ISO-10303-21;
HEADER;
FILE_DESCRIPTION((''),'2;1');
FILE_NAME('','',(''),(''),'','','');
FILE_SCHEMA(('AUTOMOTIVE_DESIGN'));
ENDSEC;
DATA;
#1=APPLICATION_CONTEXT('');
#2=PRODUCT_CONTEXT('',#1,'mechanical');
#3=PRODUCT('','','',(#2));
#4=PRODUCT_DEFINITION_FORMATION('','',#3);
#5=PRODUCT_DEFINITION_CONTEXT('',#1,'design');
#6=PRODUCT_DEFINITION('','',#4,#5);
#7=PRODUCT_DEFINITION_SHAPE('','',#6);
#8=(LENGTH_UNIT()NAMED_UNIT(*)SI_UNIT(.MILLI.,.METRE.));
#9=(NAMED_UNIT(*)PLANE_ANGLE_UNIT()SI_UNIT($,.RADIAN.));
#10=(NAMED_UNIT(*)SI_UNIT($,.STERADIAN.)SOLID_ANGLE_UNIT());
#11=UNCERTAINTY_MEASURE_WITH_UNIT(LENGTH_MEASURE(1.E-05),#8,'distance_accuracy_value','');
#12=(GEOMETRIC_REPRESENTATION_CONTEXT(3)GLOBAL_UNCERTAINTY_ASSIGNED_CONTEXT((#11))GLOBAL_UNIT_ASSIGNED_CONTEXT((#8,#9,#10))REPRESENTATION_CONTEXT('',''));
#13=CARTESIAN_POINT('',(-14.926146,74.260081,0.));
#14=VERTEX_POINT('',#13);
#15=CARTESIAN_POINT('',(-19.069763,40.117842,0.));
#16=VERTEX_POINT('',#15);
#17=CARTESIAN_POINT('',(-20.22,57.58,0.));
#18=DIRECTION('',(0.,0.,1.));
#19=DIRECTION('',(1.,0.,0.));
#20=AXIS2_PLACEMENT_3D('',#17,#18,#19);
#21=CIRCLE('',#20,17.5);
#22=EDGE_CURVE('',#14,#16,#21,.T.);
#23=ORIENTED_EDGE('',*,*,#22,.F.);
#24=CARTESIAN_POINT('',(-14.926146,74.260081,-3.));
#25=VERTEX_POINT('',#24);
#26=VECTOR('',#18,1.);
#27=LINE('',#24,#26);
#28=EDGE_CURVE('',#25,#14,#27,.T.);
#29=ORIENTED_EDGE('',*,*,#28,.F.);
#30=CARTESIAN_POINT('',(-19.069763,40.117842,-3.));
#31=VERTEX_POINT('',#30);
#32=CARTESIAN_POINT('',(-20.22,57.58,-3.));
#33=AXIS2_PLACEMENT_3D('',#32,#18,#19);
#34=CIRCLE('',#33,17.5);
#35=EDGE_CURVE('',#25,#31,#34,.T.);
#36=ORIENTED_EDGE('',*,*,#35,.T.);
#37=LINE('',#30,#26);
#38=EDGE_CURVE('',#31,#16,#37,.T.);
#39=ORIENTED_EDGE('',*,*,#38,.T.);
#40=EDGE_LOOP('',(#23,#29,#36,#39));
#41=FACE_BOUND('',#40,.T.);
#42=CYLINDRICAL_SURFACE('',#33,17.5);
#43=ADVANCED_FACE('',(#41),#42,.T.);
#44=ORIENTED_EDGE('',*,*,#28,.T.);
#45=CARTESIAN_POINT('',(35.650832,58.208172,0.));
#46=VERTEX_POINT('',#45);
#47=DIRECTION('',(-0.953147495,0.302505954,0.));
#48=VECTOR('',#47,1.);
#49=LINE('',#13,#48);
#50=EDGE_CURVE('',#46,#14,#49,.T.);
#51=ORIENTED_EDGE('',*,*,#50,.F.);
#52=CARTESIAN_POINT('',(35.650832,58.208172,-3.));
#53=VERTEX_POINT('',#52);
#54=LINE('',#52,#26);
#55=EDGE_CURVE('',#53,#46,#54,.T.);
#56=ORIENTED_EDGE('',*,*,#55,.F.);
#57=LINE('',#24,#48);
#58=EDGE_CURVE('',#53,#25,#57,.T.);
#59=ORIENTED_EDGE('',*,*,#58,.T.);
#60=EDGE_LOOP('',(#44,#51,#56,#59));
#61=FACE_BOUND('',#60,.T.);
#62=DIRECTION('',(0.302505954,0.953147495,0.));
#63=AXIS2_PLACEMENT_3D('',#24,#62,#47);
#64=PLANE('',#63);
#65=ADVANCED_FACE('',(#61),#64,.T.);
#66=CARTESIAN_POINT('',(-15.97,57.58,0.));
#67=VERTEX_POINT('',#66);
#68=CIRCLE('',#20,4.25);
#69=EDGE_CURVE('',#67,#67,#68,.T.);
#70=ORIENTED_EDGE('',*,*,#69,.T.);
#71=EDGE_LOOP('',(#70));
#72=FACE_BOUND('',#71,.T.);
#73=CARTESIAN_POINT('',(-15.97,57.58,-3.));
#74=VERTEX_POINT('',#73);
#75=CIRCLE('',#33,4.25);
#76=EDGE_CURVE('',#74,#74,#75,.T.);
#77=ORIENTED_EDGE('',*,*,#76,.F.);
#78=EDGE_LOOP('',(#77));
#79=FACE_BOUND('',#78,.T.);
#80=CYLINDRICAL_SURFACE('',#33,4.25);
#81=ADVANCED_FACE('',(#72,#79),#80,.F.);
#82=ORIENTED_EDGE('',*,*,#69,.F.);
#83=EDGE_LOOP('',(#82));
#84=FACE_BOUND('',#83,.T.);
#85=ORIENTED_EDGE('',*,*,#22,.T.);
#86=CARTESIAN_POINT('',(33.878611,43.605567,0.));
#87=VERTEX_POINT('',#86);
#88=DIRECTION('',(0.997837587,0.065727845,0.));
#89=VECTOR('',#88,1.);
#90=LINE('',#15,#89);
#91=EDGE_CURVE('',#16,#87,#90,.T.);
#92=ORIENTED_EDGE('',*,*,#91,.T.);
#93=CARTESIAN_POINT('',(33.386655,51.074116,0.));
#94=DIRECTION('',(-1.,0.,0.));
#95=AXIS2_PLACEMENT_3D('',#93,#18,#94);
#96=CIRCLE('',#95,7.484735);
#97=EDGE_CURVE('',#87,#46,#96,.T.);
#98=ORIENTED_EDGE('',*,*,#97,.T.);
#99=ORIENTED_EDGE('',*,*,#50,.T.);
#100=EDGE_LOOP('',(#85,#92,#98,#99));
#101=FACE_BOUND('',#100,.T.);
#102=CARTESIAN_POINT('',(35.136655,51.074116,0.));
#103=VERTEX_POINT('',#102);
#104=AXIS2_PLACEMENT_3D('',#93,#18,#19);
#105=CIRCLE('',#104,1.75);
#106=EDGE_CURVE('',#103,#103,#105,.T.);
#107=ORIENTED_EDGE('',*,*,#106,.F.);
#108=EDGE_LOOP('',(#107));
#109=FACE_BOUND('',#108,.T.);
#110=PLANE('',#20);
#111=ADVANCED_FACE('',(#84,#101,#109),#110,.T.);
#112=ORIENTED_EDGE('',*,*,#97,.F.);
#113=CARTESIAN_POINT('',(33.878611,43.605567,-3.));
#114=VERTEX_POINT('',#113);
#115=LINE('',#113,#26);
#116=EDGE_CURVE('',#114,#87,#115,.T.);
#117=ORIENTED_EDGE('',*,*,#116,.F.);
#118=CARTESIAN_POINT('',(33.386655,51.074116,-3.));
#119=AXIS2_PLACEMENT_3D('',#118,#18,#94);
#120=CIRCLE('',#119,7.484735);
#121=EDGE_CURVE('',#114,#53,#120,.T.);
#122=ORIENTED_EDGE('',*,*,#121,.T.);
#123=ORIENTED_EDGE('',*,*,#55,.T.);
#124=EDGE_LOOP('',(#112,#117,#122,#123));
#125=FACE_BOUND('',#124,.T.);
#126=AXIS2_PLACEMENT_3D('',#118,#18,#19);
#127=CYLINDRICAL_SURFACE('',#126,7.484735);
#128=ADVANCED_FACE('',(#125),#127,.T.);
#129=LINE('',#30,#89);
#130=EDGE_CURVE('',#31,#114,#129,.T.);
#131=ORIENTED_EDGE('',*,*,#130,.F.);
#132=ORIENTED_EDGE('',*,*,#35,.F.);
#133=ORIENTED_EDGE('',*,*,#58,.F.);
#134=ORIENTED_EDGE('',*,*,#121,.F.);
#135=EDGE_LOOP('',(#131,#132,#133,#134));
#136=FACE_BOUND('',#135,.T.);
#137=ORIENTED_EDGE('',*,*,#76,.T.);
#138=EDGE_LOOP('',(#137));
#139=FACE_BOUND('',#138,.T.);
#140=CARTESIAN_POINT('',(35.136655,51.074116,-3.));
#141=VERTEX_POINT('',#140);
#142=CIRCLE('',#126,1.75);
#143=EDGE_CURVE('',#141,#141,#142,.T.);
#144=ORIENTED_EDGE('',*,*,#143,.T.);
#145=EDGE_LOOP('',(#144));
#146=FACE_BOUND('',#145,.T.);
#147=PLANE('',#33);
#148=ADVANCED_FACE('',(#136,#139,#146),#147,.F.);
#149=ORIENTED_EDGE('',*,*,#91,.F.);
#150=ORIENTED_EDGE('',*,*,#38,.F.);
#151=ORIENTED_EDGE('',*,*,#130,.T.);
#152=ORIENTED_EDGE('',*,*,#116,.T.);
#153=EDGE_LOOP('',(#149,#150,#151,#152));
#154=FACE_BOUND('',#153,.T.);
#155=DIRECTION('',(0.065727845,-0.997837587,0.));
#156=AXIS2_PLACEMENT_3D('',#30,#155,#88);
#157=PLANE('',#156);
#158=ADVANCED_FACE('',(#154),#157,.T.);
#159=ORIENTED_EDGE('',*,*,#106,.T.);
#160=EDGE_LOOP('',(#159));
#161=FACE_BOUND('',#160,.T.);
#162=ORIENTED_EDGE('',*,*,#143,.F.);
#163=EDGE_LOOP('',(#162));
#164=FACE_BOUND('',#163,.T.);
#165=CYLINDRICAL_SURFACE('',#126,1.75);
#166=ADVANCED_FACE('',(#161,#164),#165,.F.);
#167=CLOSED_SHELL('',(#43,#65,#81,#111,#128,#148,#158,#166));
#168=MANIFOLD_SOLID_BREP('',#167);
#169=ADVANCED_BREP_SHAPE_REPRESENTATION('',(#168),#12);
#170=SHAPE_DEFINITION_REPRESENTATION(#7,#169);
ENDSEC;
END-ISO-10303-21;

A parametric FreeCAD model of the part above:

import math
import FreeCAD as App
import Part
import Sketcher

V = App.Vector

doc = App.newDocument("Part")
params = doc.addObject("Spreadsheet::Sheet", "Params")
for row, (alias, value) in enumerate([
    ("sketch1_diameter", "3.5 mm"),
    ("sketch1_diameter2", "8.5 mm"),
    ("sketch1_radius", "17.5 mm"),
    ("pad1_length", "3 mm"),
], start=1):
    params.set(f"A{row}", alias)
    params.set(f"B{row}", "=" + value)
    params.setAlias(f"B{row}", alias)

body = doc.addObject("PartDesign::Body", "Body")

# Sketch on XY plane
sketch1 = body.newObject("Sketcher::SketchObject", "Sketch")
sketch1.AttachmentSupport = (doc.getObject("XY_Plane"), [""])
sketch1.MapMode = "FlatFace"
sketch1.addGeometry(Part.LineSegment(V(35.7, 58.2, 0), V(-14.9, 74.3, 0)), False)
sketch1.addGeometry(Part.ArcOfCircle(Part.Circle(V(-20.2, 57.6, 0), V(0, 0, 1), 17.5), math.radians(72), math.radians(274)), False)
sketch1.addGeometry(Part.LineSegment(V(-19.1, 40.1, 0), V(33.9, 43.6, 0)), False)
sketch1.addGeometry(Part.ArcOfCircle(Part.Circle(V(33.4, 51.1, 0), V(0, 0, 1), 7.5), math.radians(-86), math.radians(72)), False)
sketch1.addGeometry(Part.Circle(V(33.4, 51.1, 0), V(0, 0, 1), 1.8), False)
sketch1.addGeometry(Part.Circle(V(-20.2, 57.6, 0), V(0, 0, 1), 4.2), False)
sketch1.addConstraint(Sketcher.Constraint("Tangent", 0, 2, 1, 1))
sketch1.addConstraint(Sketcher.Constraint("Tangent", 1, 2, 2, 1))
sketch1.addConstraint(Sketcher.Constraint("Tangent", 2, 2, 3, 1))
sketch1.addConstraint(Sketcher.Constraint("Tangent", 3, 2, 0, 1))
sketch1.addConstraint(Sketcher.Constraint("Coincident", 4, 3, 3, 3))
sketch1.addConstraint(Sketcher.Constraint("Coincident", 5, 3, 1, 3))
sketch1.addConstraint(Sketcher.Constraint("Diameter", 4, 3.5))
sketch1.addConstraint(Sketcher.Constraint("Diameter", 5, 8.5))
sketch1.addConstraint(Sketcher.Constraint("Radius", 1, 17.5))
sketch1.addConstraint(Sketcher.Constraint("DistanceX", 1, 3, -1, 1, 20.22))
sketch1.addConstraint(Sketcher.Constraint("DistanceY", -1, 1, 1, 3, 57.58))
sketch1.addConstraint(Sketcher.Constraint("Radius", 3, 7.484735))
sketch1.addConstraint(Sketcher.Constraint("DistanceX", 0, 2, 3, 3, 48.312801))
sketch1.addConstraint(Sketcher.Constraint("DistanceY", -1, 1, 0, 2, 74.260081))
sketch1.setExpression("Constraints[6]", "Params.sketch1_diameter")
sketch1.setExpression("Constraints[7]", "Params.sketch1_diameter2")
sketch1.setExpression("Constraints[8]", "Params.sketch1_radius")
pad1 = body.newObject("PartDesign::Pad", "Pad")
pad1.Profile = sketch1
pad1.setExpression("Length", "Params.pad1_length")
pad1.Reversed = True

doc.recompute()
